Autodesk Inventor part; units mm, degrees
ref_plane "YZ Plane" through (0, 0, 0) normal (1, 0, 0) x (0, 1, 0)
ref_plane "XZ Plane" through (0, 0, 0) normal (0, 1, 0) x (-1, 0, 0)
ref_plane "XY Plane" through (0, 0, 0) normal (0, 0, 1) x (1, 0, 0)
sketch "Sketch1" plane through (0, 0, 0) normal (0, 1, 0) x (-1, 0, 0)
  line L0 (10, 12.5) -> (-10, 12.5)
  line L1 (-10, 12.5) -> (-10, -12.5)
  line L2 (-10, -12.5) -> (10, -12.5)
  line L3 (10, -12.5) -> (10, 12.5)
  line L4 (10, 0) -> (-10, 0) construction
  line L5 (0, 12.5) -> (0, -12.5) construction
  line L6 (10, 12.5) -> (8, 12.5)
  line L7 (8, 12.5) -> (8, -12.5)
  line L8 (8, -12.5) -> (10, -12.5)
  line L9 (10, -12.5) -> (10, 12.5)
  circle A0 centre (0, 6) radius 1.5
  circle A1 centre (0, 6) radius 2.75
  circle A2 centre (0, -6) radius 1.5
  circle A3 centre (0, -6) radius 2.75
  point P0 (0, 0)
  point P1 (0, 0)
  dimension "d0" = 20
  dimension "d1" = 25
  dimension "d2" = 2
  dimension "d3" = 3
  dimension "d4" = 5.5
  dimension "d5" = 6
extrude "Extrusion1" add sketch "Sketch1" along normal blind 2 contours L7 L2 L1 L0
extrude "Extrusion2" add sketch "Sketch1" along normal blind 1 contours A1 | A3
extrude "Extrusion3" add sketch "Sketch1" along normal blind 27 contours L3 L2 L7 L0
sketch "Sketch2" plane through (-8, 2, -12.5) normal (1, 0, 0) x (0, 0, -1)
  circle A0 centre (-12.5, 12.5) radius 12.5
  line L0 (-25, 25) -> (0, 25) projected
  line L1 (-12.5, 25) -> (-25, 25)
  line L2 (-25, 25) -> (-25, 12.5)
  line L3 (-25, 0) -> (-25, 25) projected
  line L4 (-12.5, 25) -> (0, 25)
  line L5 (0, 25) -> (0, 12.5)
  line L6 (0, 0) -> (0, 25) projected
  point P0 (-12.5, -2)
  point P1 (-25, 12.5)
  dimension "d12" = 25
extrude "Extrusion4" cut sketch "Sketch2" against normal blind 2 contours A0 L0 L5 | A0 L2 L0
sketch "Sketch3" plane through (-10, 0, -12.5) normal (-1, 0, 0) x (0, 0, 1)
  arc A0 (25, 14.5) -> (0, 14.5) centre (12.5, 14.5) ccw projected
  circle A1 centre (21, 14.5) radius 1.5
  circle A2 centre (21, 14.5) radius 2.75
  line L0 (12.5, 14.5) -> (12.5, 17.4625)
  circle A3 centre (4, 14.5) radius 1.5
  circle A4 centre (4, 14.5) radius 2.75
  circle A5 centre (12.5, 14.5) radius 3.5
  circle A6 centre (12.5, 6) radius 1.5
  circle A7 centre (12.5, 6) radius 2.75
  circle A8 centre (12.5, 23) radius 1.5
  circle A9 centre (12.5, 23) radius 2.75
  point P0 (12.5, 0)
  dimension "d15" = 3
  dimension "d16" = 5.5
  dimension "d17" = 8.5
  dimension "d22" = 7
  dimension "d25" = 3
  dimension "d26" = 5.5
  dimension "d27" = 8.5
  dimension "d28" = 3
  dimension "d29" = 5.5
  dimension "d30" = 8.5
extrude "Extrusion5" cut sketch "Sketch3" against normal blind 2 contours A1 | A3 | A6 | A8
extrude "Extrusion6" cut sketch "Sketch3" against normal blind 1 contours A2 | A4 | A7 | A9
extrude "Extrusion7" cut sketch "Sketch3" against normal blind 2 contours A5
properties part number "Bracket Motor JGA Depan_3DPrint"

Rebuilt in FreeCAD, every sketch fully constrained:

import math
import FreeCAD as App
import Part
import Sketcher
from FreeCAD import Vector

doc = App.newDocument("Part")
params = doc.addObject("Spreadsheet::Sheet", "Params")
for row, (alias, value) in enumerate([
    ("sketch1_diameter", "5.5 mm"),
    ("sketch1_height", "25 mm"),
    ("sketch1_width", "18 mm"),
    ("pad1_length", "2 mm"),
    ("sketch2_diameter", "3 mm"),
    ("sketch2_diameter2", "5.5 mm"),
    ("pad2_length", "1 mm"),
    ("sketch3_width", "2 mm"),
    ("sketch3_height", "25 mm"),
    ("pad3_length", "27 mm"),
    ("sketch4_radius", "12.5 mm"),
    ("pocket1_length", "2 mm"),
    ("sketch5_diameter", "3 mm"),
    ("pocket2_length", "2 mm"),
    ("sketch6_diameter", "3 mm"),
    ("sketch6_diameter2", "5.5 mm"),
    ("pocket3_length", "1 mm"),
    ("sketch7_diameter", "7 mm"),
    ("pocket4_length", "2 mm"),
], start=1):
    params.set(f"A{row}", alias)
    params.set(f"B{row}", "=" + value)
    params.setAlias(f"B{row}", alias)

body = doc.addObject("PartDesign::Body", "Body")

# Sketch on XZ plane
sketch1 = doc.addObject("Sketcher::SketchObject", "Sketch")
body.addObject(sketch1)
sketch1.AttachmentSupport = (doc.XZ_Plane, [""])
sketch1.MapMode = "FlatFace"
sketch1.addGeometry([
    Part.LineSegment(Vector(-8, -12.5, 0), Vector(-8, 12.5, 0)),  # 0
    Part.LineSegment(Vector(-8, 12.5, 0), Vector(10, 12.5, 0)),  # 1
    Part.LineSegment(Vector(10, 12.5, 0), Vector(10, -12.5, 0)),  # 2
    Part.LineSegment(Vector(10, -12.5, 0), Vector(-8, -12.5, 0)),  # 3
    Part.Circle(Vector(0, -6, 0), Vector(0, 0, 1), 2.8),  # 4
    Part.Circle(Vector(0, 6, 0), Vector(0, 0, 1), 2.8),  # 5
], False)
sketch1.addConstraint([
    Sketcher.Constraint("Coincident", 0, 2, 1, 1),
    Sketcher.Constraint("Coincident", 1, 2, 2, 1),
    Sketcher.Constraint("Coincident", 2, 2, 3, 1),
    Sketcher.Constraint("Coincident", 3, 2, 0, 1),
    Sketcher.Constraint("Vertical", 0),
    Sketcher.Constraint("Horizontal", 1),
    Sketcher.Constraint("Vertical", 2),
    Sketcher.Constraint("Horizontal", 3),
    Sketcher.Constraint("Equal", 4, 5),
    Sketcher.Constraint("Symmetric", 4, 3, 5, 3, -1, 1),
    Sketcher.Constraint("PointOnObject", 4, 3, -2),
    Sketcher.Constraint("Diameter", 4, 5.5),
    Sketcher.Constraint("DistanceY", 0, 1, 0, 2, 25.0),
    Sketcher.Constraint("DistanceY", 4, 3, -1, 1, 6.0),
    Sketcher.Constraint("DistanceX", 1, 1, 1, 2, 18.0),
    Sketcher.Constraint("DistanceX", 0, 2, -1, 1, 8.0),
    Sketcher.Constraint("DistanceY", -1, 1, 0, 2, 12.5),
])
sketch1.setExpression("Constraints[11]", "Params.sketch1_diameter")
sketch1.setExpression("Constraints[12]", "Params.sketch1_height")
sketch1.setExpression("Constraints[14]", "Params.sketch1_width")
pad1 = doc.addObject("PartDesign::Pad", "Pad")
body.addObject(pad1)
pad1.Profile = sketch1
pad1.setExpression("Length", "Params.pad1_length")
pad1.Reversed = True

# Sketch on XZ plane
sketch2 = doc.addObject("Sketcher::SketchObject", "Sketch001")
body.addObject(sketch2)
sketch2.AttachmentSupport = (doc.XZ_Plane, [""])
sketch2.MapMode = "FlatFace"
sketch2.addGeometry([
    Part.Circle(Vector(0, 6, 0), Vector(0, 0, 1), 2.8),
    Part.Circle(Vector(0, 6, 0), Vector(0, 0, 1), 1.5),
    Part.Circle(Vector(0, -6, 0), Vector(0, 0, 1), 2.8),
    Part.Circle(Vector(0, -6, 0), Vector(0, 0, 1), 1.5),
], False)
sketch2.addConstraint([
    Sketcher.Constraint("Coincident", 1, 3, 0, 3),
    Sketcher.Constraint("Coincident", 3, 3, 2, 3),
    Sketcher.Constraint("Equal", 0, 2),
    Sketcher.Constraint("Equal", 1, 3),
    Sketcher.Constraint("Symmetric", 0, 3, 2, 3, -1, 1),
    Sketcher.Constraint("PointOnObject", 0, 3, -2),
    Sketcher.Constraint("Diameter", 1, 3.0),
    Sketcher.Constraint("Diameter", 0, 5.5),
    Sketcher.Constraint("DistanceY", -1, 1, 0, 3, 6.0),
])
sketch2.setExpression("Constraints[6]", "Params.sketch2_diameter")
sketch2.setExpression("Constraints[7]", "Params.sketch2_diameter2")
pad2 = doc.addObject("PartDesign::Pad", "Pad001")
body.addObject(pad2)
pad2.Profile = sketch2
pad2.setExpression("Length", "Params.pad2_length")
pad2.Reversed = True

# Sketch on XZ plane
sketch3 = doc.addObject("Sketcher::SketchObject", "Sketch002")
body.addObject(sketch3)
sketch3.AttachmentSupport = (doc.XZ_Plane, [""])
sketch3.MapMode = "FlatFace"
sketch3.addGeometry([
    Part.LineSegment(Vector(-10, -12.5, 0), Vector(-10, 12.5, 0)),
    Part.LineSegment(Vector(-10, 12.5, 0), Vector(-8, 12.5, 0)),
    Part.LineSegment(Vector(-8, 12.5, 0), Vector(-8, -12.5, 0)),
    Part.LineSegment(Vector(-8, -12.5, 0), Vector(-10, -12.5, 0)),
], False)
sketch3.addConstraint([
    Sketcher.Constraint("Coincident", 0, 2, 1, 1),
    Sketcher.Constraint("Coincident", 1, 2, 2, 1),
    Sketcher.Constraint("Coincident", 2, 2, 3, 1),
    Sketcher.Constraint("Coincident", 3, 2, 0, 1),
    Sketcher.Constraint("Vertical", 0),
    Sketcher.Constraint("Horizontal", 1),
    Sketcher.Constraint("Vertical", 2),
    Sketcher.Constraint("Horizontal", 3),
    Sketcher.Constraint("DistanceX", 1, 1, 1, 2, 2.0),
    Sketcher.Constraint("DistanceY", 0, 1, 0, 2, 25.0),
    Sketcher.Constraint("DistanceX", 0, 2, -1, 1, 10.0),
    Sketcher.Constraint("DistanceY", -1, 1, 0, 2, 12.5),
])
sketch3.setExpression("Constraints[8]", "Params.sketch3_width")
sketch3.setExpression("Constraints[9]", "Params.sketch3_height")
pad3 = doc.addObject("PartDesign::Pad", "Pad002")
body.addObject(pad3)
pad3.Profile = sketch3
pad3.setExpression("Length", "Params.pad3_length")
pad3.Reversed = True

# Sketch on YZ plane
sketch4 = doc.addObject("Sketcher::SketchObject", "Sketch003")
body.addObject(sketch4)
sketch4.AttachmentSupport = (doc.YZ_Plane, [""])
sketch4.MapMode = "FlatFace"
sketch4.AttachmentOffset = App.Placement(Vector(0, 0, -8), App.Rotation())
sketch4.addGeometry([
    Part.ArcOfCircle(Part.Circle(Vector(14, 0, 0), Vector(0, 0, 1), 12), math.radians(-90), math.radians(0)),  # 0
    Part.LineSegment(Vector(14, -12, 0), Vector(27, -12, 0)),  # 1
    Part.LineSegment(Vector(27, -12, 0), Vector(27, 0, 0)),  # 2
    Part.ArcOfCircle(Part.Circle(Vector(14, 0, 0), Vector(0, 0, 1), 12), math.radians(0), math.radians(90)),  # 3
    Part.LineSegment(Vector(27, 0, 0), Vector(27, 12, 0)),  # 4
    Part.LineSegment(Vector(27, 12, 0), Vector(14, 12, 0)),  # 5
], False)
sketch4.addConstraint([
    Sketcher.Constraint("Tangent", 0, 1, 1, 1),
    Sketcher.Constraint("Coincident", 1, 2, 2, 1),
    Sketcher.Constraint("Tangent", 2, 2, 0, 2),
    Sketcher.Constraint("Tangent", 3, 1, 4, 1),
    Sketcher.Constraint("Coincident", 4, 2, 5, 1),
    Sketcher.Constraint("Tangent", 5, 2, 3, 2),
    Sketcher.Constraint("Horizontal", 1),
    Sketcher.Constraint("Vertical", 2),
    Sketcher.Constraint("Vertical", 4),
    Sketcher.Constraint("Horizontal", 5),
    Sketcher.Constraint("Coincident", 3, 3, 0, 3),
    Sketcher.Constraint("Equal", 0, 3),
    Sketcher.Constraint("PointOnObject", 0, 3, -1),
    Sketcher.Constraint("Radius", 0, 12.5),
    Sketcher.Constraint("DistanceX", -1, 1, 1, 2, 27.0),
])
sketch4.setExpression("Constraints[13]", "Params.sketch4_radius")
pocket1 = doc.addObject("PartDesign::Pocket", "Pocket")
body.addObject(pocket1)
pocket1.Profile = sketch4
pocket1.setExpression("Length", "Params.pocket1_length")

# Sketch on YZ plane
sketch5 = doc.addObject("Sketcher::SketchObject", "Sketch004")
body.addObject(sketch5)
sketch5.AttachmentSupport = (doc.YZ_Plane, [""])
sketch5.MapMode = "FlatFace"
sketch5.AttachmentOffset = App.Placement(Vector(0, 0, -10), App.Rotation())
sketch5.addGeometry([
    Part.Circle(Vector(14.5, 8.5, 0), Vector(0, 0, 1), 1.5),
    Part.Circle(Vector(14.5, -8.5, 0), Vector(0, 0, 1), 1.5),
    Part.Circle(Vector(6, 0, 0), Vector(0, 0, 1), 1.5),
    Part.Circle(Vector(23, 0, 0), Vector(0, 0, 1), 1.5),
], False)
sketch5.addConstraint([
    Sketcher.Constraint("Equal", 0, 1),
    Sketcher.Constraint("Equal", 1, 2),
    Sketcher.Constraint("Equal", 2, 3),
    Sketcher.Constraint("Symmetric", 0, 3, 1, 3, -1),
    Sketcher.Constraint("PointOnObject", 2, 3, -1),
    Sketcher.Constraint("PointOnObject", 3, 3, -1),
    Sketcher.Constraint("Diameter", 0, 3.0),
    Sketcher.Constraint("DistanceY", -1, 1, 0, 3, 8.5),
    Sketcher.Constraint("DistanceX", 2, 3, 0, 3, 8.5),
    Sketcher.Constraint("DistanceX", 0, 3, 3, 3, 8.5),
    Sketcher.Constraint("DistanceX", -1, 1, 2, 3, 6.0),
])
sketch5.setExpression("Constraints[6]", "Params.sketch5_diameter")
pocket2 = doc.addObject("PartDesign::Pocket", "Pocket001")
body.addObject(pocket2)
pocket2.Profile = sketch5
pocket2.setExpression("Length", "Params.pocket2_length")
pocket2.Reversed = True

# Sketch on YZ plane
sketch6 = doc.addObject("Sketcher::SketchObject", "Sketch005")
body.addObject(sketch6)
sketch6.AttachmentSupport = (doc.YZ_Plane, [""])
sketch6.MapMode = "FlatFace"
sketch6.AttachmentOffset = App.Placement(Vector(0, 0, -10), App.Rotation())
sketch6.addGeometry([
    Part.Circle(Vector(14.5, 8.5, 0), Vector(0, 0, 1), 2.8),  # 0
    Part.Circle(Vector(14.5, 8.5, 0), Vector(0, 0, 1), 1.5),  # 1
    Part.Circle(Vector(14.5, -8.5, 0), Vector(0, 0, 1), 2.8),  # 2
    Part.Circle(Vector(14.5, -8.5, 0), Vector(0, 0, 1), 1.5),  # 3
    Part.Circle(Vector(6, 0, 0), Vector(0, 0, 1), 2.8),  # 4
    Part.Circle(Vector(6, 0, 0), Vector(0, 0, 1), 1.5),  # 5
    Part.Circle(Vector(23, 0, 0), Vector(0, 0, 1), 2.8),  # 6
    Part.Circle(Vector(23, 0, 0), Vector(0, 0, 1), 1.5),  # 7
], False)
sketch6.addConstraint([
    Sketcher.Constraint("Coincident", 1, 3, 0, 3),
    Sketcher.Constraint("Coincident", 3, 3, 2, 3),
    Sketcher.Constraint("Coincident", 5, 3, 4, 3),
    Sketcher.Constraint("Coincident", 7, 3, 6, 3),
    Sketcher.Constraint("Equal", 0, 2),
    Sketcher.Constraint("Equal", 1, 3),
    Sketcher.Constraint("Equal", 2, 4),
    Sketcher.Constraint("Equal", 3, 5),
    Sketcher.Constraint("Equal", 4, 6),
    Sketcher.Constraint("Equal", 5, 7),
    Sketcher.Constraint("Symmetric", 0, 3, 2, 3, -1),
    Sketcher.Constraint("PointOnObject", 4, 3, -1),
    Sketcher.Constraint("PointOnObject", 6, 3, -1),
    Sketcher.Constraint("Diameter", 1, 3.0),
    Sketcher.Constraint("Diameter", 0, 5.5),
    Sketcher.Constraint("DistanceY", -1, 1, 0, 3, 8.5),
    Sketcher.Constraint("DistanceX", 4, 3, 0, 3, 8.5),
    Sketcher.Constraint("DistanceX", 0, 3, 6, 3, 8.5),
    Sketcher.Constraint("DistanceX", -1, 1, 4, 3, 6.0),
])
sketch6.setExpression("Constraints[13]", "Params.sketch6_diameter")
sketch6.setExpression("Constraints[14]", "Params.sketch6_diameter2")
pocket3 = doc.addObject("PartDesign::Pocket", "Pocket002")
body.addObject(pocket3)
pocket3.Profile = sketch6
pocket3.setExpression("Length", "Params.pocket3_length")
pocket3.Reversed = True

# Sketch on YZ plane
sketch7 = doc.addObject("Sketcher::SketchObject", "Sketch006")
body.addObject(sketch7)
sketch7.AttachmentSupport = (doc.YZ_Plane, [""])
sketch7.MapMode = "FlatFace"
sketch7.AttachmentOffset = App.Placement(Vector(0, 0, -10), App.Rotation())
sketch7.addGeometry(Part.Circle(Vector(14.5, 0, 0), Vector(0, 0, 1), 3.5), False)
sketch7.addConstraint([
    Sketcher.Constraint("PointOnObject", 0, 3, -1),
    Sketcher.Constraint("Diameter", 0, 7.0),
    Sketcher.Constraint("DistanceX", -1, 1, 0, 3, 14.5),
])
sketch7.setExpression("Constraints[1]", "Params.sketch7_diameter")
pocket4 = doc.addObject("PartDesign::Pocket", "Pocket003")
body.addObject(pocket4)
pocket4.Profile = sketch7
pocket4.setExpression("Length", "Params.pocket4_length")
pocket4.Reversed = True

doc.recompute()
